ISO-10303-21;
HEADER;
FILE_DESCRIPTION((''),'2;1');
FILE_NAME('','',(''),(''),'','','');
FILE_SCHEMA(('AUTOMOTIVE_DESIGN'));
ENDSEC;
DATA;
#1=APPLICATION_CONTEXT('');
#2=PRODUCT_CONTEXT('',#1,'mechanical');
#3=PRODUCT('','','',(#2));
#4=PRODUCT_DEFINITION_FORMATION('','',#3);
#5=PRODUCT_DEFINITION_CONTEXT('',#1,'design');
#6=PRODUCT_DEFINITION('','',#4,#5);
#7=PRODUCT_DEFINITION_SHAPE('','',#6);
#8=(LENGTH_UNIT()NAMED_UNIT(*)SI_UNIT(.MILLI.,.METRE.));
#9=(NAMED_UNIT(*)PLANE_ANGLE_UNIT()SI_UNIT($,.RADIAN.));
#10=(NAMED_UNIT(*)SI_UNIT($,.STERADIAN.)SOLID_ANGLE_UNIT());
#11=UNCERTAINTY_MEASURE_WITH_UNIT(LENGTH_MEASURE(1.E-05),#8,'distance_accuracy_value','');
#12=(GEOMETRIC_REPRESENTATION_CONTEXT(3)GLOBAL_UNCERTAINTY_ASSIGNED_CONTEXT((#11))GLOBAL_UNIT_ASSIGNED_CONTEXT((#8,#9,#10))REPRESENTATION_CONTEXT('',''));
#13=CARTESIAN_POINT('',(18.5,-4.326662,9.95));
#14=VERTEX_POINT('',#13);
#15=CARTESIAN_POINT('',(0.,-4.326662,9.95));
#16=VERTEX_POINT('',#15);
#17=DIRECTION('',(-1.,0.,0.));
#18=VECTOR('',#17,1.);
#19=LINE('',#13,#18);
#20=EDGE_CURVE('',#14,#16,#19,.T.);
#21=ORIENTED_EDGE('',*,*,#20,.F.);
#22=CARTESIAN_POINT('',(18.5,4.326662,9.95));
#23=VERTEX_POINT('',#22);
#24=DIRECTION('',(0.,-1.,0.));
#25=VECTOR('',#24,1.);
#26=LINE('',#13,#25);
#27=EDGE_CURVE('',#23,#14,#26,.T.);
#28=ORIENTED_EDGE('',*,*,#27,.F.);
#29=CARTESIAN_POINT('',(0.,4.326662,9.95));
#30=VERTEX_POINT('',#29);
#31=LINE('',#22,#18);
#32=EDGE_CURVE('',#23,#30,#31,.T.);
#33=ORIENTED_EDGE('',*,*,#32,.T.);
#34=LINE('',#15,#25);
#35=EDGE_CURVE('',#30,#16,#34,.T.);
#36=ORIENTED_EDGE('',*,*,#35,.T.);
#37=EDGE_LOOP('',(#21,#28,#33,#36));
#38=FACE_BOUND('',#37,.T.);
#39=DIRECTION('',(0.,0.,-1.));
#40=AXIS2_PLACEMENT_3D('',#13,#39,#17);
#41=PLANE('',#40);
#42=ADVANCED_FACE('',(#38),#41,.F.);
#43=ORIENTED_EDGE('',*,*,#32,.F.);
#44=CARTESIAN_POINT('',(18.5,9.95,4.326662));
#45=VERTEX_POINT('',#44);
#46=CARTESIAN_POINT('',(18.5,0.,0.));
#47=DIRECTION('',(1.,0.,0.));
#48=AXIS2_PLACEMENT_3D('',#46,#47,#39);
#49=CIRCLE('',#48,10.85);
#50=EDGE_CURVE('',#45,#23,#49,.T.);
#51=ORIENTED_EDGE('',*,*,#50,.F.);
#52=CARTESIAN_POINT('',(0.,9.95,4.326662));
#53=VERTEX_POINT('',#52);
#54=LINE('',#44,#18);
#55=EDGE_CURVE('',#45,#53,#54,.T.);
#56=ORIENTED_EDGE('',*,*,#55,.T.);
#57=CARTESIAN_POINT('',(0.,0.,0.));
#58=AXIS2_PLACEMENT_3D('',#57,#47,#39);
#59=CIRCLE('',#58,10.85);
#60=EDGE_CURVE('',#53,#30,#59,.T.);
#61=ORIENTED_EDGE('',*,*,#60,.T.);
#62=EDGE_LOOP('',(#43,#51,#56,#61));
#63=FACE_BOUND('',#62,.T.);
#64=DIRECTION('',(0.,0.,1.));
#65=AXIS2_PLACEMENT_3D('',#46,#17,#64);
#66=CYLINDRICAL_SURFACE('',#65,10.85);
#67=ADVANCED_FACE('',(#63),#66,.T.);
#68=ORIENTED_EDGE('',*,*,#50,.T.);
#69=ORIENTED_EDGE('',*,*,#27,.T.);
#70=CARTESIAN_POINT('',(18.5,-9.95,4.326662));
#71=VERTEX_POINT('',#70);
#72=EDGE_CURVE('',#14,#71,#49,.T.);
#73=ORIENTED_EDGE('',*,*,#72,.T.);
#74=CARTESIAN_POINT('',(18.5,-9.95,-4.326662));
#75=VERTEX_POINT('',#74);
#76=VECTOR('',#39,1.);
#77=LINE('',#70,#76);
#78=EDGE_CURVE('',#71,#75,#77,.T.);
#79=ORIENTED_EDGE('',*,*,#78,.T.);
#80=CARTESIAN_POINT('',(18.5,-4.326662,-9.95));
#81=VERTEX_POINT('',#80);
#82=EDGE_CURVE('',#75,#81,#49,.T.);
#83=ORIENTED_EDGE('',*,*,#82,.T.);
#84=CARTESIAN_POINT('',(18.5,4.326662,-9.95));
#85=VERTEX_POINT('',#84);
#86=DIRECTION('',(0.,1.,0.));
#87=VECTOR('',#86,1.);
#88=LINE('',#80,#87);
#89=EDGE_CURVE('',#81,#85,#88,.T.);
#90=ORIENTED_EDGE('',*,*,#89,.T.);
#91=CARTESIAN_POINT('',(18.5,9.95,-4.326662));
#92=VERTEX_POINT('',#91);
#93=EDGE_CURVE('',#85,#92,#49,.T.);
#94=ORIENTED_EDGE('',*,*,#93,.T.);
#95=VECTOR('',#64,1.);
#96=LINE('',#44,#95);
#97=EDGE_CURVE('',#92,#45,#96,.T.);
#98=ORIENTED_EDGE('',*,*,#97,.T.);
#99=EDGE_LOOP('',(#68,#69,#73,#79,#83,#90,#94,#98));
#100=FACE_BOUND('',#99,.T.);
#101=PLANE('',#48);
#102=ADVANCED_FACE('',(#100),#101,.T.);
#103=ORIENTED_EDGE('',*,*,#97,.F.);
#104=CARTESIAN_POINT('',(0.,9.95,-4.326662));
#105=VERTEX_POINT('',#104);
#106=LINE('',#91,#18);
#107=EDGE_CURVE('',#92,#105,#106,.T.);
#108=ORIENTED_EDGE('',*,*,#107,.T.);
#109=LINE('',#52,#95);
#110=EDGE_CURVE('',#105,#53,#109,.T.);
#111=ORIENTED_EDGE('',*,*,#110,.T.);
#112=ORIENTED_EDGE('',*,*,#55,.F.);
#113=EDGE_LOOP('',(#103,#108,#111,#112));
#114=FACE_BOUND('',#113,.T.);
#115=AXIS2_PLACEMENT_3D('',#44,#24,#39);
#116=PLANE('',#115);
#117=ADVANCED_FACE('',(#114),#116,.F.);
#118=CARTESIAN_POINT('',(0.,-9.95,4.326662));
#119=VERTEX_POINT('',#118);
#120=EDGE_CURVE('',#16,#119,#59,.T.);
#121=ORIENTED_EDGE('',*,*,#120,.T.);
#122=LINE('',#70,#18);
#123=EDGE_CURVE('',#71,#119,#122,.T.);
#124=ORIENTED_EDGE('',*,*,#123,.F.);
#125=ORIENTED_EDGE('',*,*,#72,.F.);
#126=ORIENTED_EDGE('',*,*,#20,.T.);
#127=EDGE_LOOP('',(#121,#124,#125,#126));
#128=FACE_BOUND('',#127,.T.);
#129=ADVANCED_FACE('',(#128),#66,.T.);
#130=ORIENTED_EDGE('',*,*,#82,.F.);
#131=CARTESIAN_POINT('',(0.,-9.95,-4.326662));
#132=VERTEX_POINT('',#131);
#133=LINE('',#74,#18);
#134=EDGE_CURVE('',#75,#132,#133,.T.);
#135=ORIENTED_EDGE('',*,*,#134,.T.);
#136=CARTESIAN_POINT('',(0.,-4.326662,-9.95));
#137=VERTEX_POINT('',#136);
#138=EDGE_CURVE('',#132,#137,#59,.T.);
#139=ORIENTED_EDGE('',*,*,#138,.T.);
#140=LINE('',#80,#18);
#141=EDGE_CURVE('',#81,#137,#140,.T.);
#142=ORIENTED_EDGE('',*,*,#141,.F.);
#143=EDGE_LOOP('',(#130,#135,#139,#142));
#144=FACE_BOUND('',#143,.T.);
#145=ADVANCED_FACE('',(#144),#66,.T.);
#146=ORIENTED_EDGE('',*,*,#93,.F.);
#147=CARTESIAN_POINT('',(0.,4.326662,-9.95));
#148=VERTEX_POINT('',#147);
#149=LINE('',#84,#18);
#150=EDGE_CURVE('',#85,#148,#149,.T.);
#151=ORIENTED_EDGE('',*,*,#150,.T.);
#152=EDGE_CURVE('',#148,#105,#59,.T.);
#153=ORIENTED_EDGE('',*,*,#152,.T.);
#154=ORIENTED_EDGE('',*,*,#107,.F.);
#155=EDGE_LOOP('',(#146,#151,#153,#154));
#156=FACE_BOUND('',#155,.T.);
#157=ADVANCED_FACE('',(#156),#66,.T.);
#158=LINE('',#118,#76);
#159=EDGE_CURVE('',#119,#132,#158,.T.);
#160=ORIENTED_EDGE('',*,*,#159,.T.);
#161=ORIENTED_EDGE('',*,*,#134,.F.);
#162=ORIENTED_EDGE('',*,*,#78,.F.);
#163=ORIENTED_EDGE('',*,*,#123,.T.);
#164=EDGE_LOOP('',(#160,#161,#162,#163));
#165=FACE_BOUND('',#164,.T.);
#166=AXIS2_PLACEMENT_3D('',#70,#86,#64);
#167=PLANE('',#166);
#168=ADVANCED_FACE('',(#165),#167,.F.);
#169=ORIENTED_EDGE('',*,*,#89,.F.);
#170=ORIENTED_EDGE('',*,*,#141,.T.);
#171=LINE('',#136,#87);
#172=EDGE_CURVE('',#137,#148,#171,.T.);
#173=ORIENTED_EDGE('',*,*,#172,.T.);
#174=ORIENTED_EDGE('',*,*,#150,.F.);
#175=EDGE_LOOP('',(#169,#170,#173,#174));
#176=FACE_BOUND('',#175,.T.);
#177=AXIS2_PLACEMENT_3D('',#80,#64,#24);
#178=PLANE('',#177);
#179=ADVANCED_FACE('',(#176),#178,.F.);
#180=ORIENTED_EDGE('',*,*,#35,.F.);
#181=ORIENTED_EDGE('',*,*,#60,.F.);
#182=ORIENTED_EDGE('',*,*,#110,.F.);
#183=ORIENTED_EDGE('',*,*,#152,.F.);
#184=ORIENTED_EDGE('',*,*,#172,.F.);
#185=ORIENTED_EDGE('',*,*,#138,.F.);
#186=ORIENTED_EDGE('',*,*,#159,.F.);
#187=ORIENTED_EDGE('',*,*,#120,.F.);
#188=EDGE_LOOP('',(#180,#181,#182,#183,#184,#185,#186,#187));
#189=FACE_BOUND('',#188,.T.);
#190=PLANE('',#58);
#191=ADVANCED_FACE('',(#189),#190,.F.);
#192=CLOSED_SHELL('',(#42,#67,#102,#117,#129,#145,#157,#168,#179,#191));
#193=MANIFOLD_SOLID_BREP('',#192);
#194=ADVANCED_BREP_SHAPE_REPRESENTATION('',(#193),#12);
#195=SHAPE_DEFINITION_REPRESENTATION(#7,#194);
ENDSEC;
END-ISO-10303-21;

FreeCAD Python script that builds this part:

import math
import FreeCAD as App
import Part
import Sketcher

V = App.Vector
Q = App.Units.Quantity

doc = App.newDocument("Part")
params = doc.addObject("Spreadsheet::Sheet", "Params")
for row, (alias, value) in enumerate([
    ("sketch1_radius", "10.85 mm"),
    ("pad1_length", "18.5 mm"),
], start=1):
    params.set(f"A{row}", alias)
    params.set(f"B{row}", "=" + value)
    params.setAlias(f"B{row}", alias)

body = doc.addObject("PartDesign::Body", "Body")

# Sketch on YZ plane
sketch1 = body.newObject("Sketcher::SketchObject", "Sketch")
sketch1.AttachmentSupport = (doc.getObject("YZ_Plane"), [""])
sketch1.MapMode = "FlatFace"
sketch1.addGeometry([
    Part.LineSegment(V(4, 10, 0), V(-4, 10, 0)),  # 0
    Part.ArcOfCircle(Part.Circle(V(0, 0, 0), V(0, 0, 1), 11), math.radians(114), math.radians(156)),  # 1
    Part.LineSegment(V(-10, 4, 0), V(-10, -4, 0)),  # 2
    Part.ArcOfCircle(Part.Circle(V(0, 0, 0), V(0, 0, 1), 11), math.radians(-156), math.radians(-114)),  # 3
    Part.LineSegment(V(-4, -10, 0), V(4, -10, 0)),  # 4
    Part.ArcOfCircle(Part.Circle(V(0, 0, 0), V(0, 0, 1), 11), math.radians(-66), math.radians(-24)),  # 5
    Part.LineSegment(V(10, -4, 0), V(10, 4, 0)),  # 6
    Part.ArcOfCircle(Part.Circle(V(0, 0, 0), V(0, 0, 1), 11), math.radians(24), math.radians(66)),  # 7
], False)
sketch1.addConstraint([
    Sketcher.Constraint("Coincident", 0, 2, 1, 1),
    Sketcher.Constraint("Coincident", 1, 2, 2, 1),
    Sketcher.Constraint("Coincident", 2, 2, 3, 1),
    Sketcher.Constraint("Coincident", 3, 2, 4, 1),
    Sketcher.Constraint("Coincident", 4, 2, 5, 1),
    Sketcher.Constraint("Coincident", 5, 2, 6, 1),
    Sketcher.Constraint("Coincident", 6, 2, 7, 1),
    Sketcher.Constraint("Coincident", 7, 2, 0, 1),
    Sketcher.Constraint("Horizontal", 0),
    Sketcher.Constraint("Vertical", 2),
    Sketcher.Constraint("Horizontal", 4),
    Sketcher.Constraint("Vertical", 6),
    Sketcher.Constraint("Coincident", 1, 3, -1, 1),
    Sketcher.Constraint("Coincident", 3, 3, -1, 1),
    Sketcher.Constraint("Coincident", 5, 3, -1, 1),
    Sketcher.Constraint("Coincident", 7, 3, -1, 1),
    Sketcher.Constraint("Equal", 1, 3),
    Sketcher.Constraint("Equal", 3, 5),
    Sketcher.Constraint("Equal", 5, 7),
    Sketcher.Constraint("Horizontal", 2, 2, 5, 2),
    Sketcher.Constraint("Vertical", 0, 2, 3, 2),
    Sketcher.Constraint("Equal", 4, 2),
    Sketcher.Constraint("Radius", 1, Q("10.85 mm")),
    Sketcher.Constraint("DistanceY", -1, 1, 0, 2, Q("9.95 mm")),
])
sketch1.setExpression("Constraints[22]", "Params.sketch1_radius")
pad1 = body.newObject("PartDesign::Pad", "Pad")
pad1.Profile = sketch1
pad1.setExpression("Length", "Params.pad1_length")

doc.recompute()
